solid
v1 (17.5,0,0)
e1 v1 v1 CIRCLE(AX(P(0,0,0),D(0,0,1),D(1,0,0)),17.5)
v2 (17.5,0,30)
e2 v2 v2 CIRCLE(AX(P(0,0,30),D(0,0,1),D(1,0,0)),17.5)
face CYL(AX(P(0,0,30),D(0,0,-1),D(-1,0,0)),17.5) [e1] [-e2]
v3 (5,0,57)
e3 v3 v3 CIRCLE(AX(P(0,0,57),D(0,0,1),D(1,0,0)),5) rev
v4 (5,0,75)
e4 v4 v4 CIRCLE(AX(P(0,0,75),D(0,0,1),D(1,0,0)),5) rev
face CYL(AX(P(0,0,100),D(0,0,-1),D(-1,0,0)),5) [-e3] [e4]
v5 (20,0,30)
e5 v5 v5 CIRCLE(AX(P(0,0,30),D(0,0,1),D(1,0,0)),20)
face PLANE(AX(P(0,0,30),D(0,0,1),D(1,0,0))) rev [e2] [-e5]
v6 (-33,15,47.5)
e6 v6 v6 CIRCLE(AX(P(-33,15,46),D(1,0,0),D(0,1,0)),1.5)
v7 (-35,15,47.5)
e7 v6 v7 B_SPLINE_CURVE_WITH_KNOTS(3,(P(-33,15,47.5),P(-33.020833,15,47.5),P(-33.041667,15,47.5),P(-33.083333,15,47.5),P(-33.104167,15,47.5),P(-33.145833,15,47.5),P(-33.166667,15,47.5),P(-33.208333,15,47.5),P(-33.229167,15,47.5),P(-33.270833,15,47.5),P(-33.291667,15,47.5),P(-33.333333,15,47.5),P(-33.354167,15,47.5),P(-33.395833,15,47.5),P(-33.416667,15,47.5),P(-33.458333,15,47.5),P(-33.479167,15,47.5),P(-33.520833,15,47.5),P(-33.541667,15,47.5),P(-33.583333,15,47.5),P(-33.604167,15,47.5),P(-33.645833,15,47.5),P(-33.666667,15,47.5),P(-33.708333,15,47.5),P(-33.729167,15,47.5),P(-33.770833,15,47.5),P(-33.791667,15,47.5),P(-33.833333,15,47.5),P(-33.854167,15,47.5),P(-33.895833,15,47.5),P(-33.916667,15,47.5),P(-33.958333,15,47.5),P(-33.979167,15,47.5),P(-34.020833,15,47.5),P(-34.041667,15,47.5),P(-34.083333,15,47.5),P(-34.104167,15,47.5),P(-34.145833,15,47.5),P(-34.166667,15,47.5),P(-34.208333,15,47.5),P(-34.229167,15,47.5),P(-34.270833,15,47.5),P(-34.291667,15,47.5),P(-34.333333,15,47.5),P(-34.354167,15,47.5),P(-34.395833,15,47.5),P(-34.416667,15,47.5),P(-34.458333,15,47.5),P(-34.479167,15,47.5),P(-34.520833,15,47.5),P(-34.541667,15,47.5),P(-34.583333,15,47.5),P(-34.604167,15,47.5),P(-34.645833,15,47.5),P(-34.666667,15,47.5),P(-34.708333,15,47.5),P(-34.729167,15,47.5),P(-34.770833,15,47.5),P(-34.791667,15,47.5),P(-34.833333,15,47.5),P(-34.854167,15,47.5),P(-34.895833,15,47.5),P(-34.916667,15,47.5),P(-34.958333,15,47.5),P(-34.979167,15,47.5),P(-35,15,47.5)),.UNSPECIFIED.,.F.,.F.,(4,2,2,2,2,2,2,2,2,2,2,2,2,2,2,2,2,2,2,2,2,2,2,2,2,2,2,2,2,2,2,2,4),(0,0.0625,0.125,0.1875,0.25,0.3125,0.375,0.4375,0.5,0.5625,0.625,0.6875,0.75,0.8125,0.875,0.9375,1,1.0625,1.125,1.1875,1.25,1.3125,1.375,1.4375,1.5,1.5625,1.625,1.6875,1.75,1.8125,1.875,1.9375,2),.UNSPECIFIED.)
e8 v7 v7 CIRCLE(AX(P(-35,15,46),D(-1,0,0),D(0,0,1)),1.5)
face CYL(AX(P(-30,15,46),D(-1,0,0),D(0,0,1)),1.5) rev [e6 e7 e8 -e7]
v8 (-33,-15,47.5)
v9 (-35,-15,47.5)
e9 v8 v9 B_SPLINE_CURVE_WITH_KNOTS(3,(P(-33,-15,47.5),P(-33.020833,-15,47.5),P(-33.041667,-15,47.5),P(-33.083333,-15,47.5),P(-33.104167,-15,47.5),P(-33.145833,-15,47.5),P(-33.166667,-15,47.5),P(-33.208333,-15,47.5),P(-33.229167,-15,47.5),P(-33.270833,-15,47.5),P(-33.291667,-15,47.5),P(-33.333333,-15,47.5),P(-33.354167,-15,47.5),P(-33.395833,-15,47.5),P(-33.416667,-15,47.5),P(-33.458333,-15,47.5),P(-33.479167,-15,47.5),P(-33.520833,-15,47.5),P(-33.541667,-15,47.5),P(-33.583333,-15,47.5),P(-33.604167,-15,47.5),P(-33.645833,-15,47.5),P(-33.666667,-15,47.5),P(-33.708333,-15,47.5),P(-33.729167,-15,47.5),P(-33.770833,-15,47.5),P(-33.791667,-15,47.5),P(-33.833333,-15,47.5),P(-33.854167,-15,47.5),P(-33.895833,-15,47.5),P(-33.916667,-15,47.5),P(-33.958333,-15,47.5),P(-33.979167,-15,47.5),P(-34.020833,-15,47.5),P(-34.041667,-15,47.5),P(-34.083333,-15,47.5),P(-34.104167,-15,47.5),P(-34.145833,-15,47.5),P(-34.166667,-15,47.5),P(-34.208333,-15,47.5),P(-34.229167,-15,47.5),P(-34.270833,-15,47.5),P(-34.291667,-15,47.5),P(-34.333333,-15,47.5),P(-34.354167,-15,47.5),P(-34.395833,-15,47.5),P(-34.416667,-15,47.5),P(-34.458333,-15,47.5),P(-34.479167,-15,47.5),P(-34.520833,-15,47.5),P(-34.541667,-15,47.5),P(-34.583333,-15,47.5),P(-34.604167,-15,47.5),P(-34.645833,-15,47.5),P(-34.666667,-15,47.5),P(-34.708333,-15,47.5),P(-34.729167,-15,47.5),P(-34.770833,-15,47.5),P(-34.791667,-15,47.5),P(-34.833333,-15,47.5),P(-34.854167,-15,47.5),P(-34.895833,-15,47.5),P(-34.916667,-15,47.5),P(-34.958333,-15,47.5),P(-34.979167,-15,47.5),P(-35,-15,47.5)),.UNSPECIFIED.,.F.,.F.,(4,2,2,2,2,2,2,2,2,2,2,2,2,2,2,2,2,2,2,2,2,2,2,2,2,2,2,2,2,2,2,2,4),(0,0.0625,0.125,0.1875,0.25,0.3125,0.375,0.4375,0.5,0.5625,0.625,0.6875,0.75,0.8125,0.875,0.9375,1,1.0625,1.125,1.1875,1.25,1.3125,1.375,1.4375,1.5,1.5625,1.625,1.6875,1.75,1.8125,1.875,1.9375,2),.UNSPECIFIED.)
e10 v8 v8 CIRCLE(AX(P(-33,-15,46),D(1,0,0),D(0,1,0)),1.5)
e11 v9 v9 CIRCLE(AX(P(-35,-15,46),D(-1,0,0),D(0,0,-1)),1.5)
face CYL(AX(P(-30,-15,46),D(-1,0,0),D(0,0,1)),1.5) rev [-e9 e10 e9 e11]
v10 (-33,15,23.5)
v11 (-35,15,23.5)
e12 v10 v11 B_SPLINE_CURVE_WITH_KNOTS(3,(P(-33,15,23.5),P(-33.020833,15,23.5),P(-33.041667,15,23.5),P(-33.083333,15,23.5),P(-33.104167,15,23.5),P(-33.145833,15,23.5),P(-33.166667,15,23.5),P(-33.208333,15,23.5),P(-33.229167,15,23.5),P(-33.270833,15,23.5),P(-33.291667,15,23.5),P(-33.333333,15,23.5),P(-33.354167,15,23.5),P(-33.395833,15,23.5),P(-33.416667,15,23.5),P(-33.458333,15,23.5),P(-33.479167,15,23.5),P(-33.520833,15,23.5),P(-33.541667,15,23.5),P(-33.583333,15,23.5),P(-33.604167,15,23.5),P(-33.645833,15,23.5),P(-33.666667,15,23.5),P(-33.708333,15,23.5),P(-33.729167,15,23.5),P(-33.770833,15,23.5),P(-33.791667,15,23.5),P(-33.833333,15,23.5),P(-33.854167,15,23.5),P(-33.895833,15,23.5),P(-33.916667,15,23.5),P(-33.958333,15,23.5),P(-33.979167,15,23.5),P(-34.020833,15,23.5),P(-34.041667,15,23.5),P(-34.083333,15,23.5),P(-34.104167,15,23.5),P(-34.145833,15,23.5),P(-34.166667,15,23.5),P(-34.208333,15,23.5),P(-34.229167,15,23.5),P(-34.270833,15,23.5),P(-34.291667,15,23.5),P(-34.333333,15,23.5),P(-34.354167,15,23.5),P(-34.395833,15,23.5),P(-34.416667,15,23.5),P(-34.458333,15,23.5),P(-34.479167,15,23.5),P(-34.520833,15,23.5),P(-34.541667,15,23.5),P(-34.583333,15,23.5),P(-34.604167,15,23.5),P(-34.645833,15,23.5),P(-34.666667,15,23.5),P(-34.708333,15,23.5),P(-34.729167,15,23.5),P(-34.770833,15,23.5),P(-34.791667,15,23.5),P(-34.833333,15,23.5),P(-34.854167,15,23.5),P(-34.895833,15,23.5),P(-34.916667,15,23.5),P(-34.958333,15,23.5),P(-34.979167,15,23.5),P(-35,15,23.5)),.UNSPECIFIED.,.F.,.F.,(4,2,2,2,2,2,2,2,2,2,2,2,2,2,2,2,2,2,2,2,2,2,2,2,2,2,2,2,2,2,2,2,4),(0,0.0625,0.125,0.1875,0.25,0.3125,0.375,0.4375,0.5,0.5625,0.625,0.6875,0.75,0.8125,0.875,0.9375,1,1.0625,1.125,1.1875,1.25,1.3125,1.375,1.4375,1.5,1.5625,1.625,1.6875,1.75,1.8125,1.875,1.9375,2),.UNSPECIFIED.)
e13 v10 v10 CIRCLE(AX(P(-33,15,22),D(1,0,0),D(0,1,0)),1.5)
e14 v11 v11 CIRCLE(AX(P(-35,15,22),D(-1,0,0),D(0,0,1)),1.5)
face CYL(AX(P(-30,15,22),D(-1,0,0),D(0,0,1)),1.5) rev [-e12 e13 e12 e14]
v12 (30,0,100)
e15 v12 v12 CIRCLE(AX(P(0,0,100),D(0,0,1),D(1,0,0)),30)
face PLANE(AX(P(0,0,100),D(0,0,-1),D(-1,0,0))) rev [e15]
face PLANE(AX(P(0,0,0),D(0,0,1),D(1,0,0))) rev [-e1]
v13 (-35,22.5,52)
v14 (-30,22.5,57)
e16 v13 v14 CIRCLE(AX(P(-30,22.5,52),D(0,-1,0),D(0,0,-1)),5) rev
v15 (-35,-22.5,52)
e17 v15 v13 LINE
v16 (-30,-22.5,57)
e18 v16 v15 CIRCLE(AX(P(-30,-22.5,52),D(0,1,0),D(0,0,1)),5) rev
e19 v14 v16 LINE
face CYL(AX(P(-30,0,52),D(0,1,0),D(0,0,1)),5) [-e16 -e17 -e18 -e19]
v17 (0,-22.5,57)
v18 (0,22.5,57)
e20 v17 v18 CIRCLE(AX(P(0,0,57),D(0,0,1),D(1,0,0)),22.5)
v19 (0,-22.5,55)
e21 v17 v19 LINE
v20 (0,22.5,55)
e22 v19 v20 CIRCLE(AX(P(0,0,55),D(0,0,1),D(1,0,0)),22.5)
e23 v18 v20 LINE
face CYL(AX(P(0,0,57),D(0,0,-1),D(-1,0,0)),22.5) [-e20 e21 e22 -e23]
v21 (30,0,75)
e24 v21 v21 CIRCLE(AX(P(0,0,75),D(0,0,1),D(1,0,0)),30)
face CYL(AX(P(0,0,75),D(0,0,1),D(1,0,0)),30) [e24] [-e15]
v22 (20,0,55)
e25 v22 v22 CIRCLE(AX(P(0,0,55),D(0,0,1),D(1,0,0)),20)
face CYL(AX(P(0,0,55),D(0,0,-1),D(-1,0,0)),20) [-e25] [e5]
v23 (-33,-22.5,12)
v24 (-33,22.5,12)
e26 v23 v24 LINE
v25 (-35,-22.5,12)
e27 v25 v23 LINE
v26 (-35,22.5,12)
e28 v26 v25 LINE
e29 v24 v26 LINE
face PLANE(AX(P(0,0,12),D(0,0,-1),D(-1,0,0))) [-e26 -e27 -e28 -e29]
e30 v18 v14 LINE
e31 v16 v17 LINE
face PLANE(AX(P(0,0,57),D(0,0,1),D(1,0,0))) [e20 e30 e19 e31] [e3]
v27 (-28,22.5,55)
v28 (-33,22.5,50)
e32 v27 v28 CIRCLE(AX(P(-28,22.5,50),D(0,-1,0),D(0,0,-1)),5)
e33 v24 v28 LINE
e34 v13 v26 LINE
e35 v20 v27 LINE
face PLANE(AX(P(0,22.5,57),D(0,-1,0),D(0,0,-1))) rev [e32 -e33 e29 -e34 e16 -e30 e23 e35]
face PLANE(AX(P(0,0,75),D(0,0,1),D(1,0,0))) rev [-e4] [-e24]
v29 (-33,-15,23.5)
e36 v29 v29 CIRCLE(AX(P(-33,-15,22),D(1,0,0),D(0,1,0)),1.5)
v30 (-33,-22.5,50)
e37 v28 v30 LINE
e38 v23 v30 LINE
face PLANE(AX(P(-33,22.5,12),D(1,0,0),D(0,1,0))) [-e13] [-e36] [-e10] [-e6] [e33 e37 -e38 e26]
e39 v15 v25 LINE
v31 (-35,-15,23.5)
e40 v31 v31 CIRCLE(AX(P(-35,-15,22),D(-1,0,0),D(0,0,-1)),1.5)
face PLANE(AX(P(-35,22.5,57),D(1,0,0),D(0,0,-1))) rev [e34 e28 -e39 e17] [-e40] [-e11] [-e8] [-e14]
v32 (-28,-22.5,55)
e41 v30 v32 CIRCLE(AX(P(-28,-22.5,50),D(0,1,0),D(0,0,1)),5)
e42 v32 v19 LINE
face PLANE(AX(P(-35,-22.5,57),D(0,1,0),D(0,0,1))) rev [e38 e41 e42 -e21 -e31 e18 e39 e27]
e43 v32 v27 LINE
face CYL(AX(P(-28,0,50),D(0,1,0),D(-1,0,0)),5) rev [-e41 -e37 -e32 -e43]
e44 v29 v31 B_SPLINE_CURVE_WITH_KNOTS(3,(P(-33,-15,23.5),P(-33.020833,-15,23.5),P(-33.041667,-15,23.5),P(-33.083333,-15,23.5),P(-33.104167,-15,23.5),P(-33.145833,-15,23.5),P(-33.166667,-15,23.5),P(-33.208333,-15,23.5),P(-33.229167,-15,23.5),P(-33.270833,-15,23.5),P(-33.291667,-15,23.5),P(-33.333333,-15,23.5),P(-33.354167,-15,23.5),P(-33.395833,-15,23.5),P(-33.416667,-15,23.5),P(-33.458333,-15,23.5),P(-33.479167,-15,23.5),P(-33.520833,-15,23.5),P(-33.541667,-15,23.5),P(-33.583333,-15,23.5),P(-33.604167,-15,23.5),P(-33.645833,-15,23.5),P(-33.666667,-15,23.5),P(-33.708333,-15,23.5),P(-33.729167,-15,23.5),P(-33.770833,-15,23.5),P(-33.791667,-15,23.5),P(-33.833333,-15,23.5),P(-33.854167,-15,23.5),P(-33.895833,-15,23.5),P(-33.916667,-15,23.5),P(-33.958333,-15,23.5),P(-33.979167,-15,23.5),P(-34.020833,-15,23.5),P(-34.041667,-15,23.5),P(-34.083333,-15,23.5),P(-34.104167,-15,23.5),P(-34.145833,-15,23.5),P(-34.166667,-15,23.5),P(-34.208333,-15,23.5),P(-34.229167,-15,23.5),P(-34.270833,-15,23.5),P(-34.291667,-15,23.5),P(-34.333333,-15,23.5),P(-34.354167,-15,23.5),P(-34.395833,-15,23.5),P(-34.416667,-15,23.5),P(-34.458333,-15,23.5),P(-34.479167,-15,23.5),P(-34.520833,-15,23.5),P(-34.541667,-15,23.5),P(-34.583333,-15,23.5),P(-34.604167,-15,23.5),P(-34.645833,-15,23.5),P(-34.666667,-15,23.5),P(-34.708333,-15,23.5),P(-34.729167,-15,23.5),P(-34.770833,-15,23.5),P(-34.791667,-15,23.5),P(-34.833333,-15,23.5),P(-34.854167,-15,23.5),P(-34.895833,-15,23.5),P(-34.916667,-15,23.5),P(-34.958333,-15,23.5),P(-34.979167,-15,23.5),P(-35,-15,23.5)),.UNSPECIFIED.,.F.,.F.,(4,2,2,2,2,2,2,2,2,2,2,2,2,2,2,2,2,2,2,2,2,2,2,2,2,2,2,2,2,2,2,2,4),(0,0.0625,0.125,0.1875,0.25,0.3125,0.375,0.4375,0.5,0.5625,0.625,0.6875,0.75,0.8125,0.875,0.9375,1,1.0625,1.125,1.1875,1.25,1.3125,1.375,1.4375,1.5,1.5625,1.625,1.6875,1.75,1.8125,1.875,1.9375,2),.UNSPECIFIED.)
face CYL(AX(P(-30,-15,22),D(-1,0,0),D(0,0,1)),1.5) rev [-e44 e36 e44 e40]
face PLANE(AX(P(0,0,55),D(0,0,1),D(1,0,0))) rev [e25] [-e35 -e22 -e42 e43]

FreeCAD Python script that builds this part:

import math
import FreeCAD as App
import Part
import Sketcher

V = App.Vector
Q = App.Units.Quantity


def edges_at(feature, points):
    """Names of the edges that pass closest to the given points."""
    edges = feature.Shape.Edges
    near = lambda p: min(range(len(edges)), key=lambda i: edges[i].distToShape(Part.Vertex(*p))[0])
    return sorted({f"Edge{near(p) + 1}" for p in points})

doc = App.newDocument("Part")
params = doc.addObject("Spreadsheet::Sheet", "Params")
for row, (alias, value) in enumerate([
    ("sketch1_diameter", "35 mm"),
    ("pad1_length", "30 mm"),
    ("sketch2_diameter", "40 mm"),
    ("pad2_length", "25 mm"),
    ("sketch3_diameter", "10 mm"),
    ("pad3_length", "100 mm"),
    ("sketch4_diameter", "60 mm"),
    ("pad4_length", "25 mm"),
    ("sketch5_radius", "22.5 mm"),
    ("sketch5_width", "35 mm"),
    ("pad5_length", "2 mm"),
    ("sketch6_width", "2 mm"),
    ("sketch6_height", "45 mm"),
    ("pad6_length", "45 mm"),
    ("fillet_radius", "5 mm"),
    ("sketch7_diameter", "3 mm"),
    ("pocket1_length", "5 mm"),
], start=1):
    params.set(f"A{row}", alias)
    params.set(f"B{row}", "=" + value)
    params.setAlias(f"B{row}", alias)

body = doc.addObject("PartDesign::Body", "Body")

sketch1 = body.newObject("Sketcher::SketchObject", "Sketch")
sketch1.AttachmentSupport = (doc.getObject("XY_Plane"), [""])
sketch1.MapMode = "FlatFace"
sketch1.addGeometry(Part.Circle(V(0, 0, 0), V(0, 0, 1), 18), False)
sketch1.addConstraint([
    Sketcher.Constraint("Coincident", 0, 3, -1, 1),
    Sketcher.Constraint("Diameter", 0, Q("35 mm")),
])
sketch1.setExpression("Constraints[1]", "Params.sketch1_diameter")
pad1 = body.newObject("PartDesign::Pad", "Pad")
pad1.Profile = sketch1
pad1.setExpression("Length", "Params.pad1_length")

sketch2 = body.newObject("Sketcher::SketchObject", "Sketch001")
sketch2.AttachmentSupport = (doc.getObject("XY_Plane"), [""])
sketch2.MapMode = "FlatFace"
sketch2.AttachmentOffset = App.Placement(V(0, 0, 30), App.Rotation())
sketch2.addGeometry(Part.Circle(V(0, 0, 0), V(0, 0, 1), 20), False)
sketch2.addConstraint([
    Sketcher.Constraint("Coincident", 0, 3, -1, 1),
    Sketcher.Constraint("Diameter", 0, Q("40 mm")),
])
sketch2.setExpression("Constraints[1]", "Params.sketch2_diameter")
pad2 = body.newObject("PartDesign::Pad", "Pad001")
pad2.Profile = sketch2
pad2.setExpression("Length", "Params.pad2_length")

sketch3 = body.newObject("Sketcher::SketchObject", "Sketch002")
sketch3.AttachmentSupport = (doc.getObject("XY_Plane"), [""])
sketch3.MapMode = "FlatFace"
sketch3.addGeometry(Part.Circle(V(0, 0, 0), V(0, 0, 1), 5), False)
sketch3.addConstraint([
    Sketcher.Constraint("Coincident", 0, 3, -1, 1),
    Sketcher.Constraint("Diameter", 0, Q("10 mm")),
])
sketch3.setExpression("Constraints[1]", "Params.sketch3_diameter")
pad3 = body.newObject("PartDesign::Pad", "Pad002")
pad3.Profile = sketch3
pad3.setExpression("Length", "Params.pad3_length")

sketch4 = body.newObject("Sketcher::SketchObject", "Sketch003")
sketch4.AttachmentSupport = (doc.getObject("XY_Plane"), [""])
sketch4.MapMode = "FlatFace"
sketch4.AttachmentOffset = App.Placement(V(0, 0, 100), App.Rotation())
sketch4.addGeometry(Part.Circle(V(0, 0, 0), V(0, 0, 1), 30), False)
sketch4.addConstraint([
    Sketcher.Constraint("Coincident", 0, 3, -1, 1),
    Sketcher.Constraint("Diameter", 0, Q("60 mm")),
])
sketch4.setExpression("Constraints[1]", "Params.sketch4_diameter")
pad4 = body.newObject("PartDesign::Pad", "Pad003")
pad4.Profile = sketch4
pad4.setExpression("Length", "Params.pad4_length")
pad4.Reversed = True

sketch5 = body.newObject("Sketcher::SketchObject", "Sketch004")
sketch5.AttachmentSupport = (doc.getObject("XY_Plane"), [""])
sketch5.MapMode = "FlatFace"
sketch5.AttachmentOffset = App.Placement(V(0, 0, 55), App.Rotation())
sketch5.addGeometry([
    Part.LineSegment(V(0, 22, 0), V(-35, 22, 0)),
    Part.LineSegment(V(-35, 22, 0), V(-35, -22, 0)),
    Part.LineSegment(V(-35, -22, 0), V(0, -22, 0)),
    Part.ArcOfCircle(Part.Circle(V(0, 0, 0), V(0, 0, 1), 22), math.radians(-90), math.radians(90)),
], False)
sketch5.addConstraint([
    Sketcher.Constraint("Coincident", 0, 2, 1, 1),
    Sketcher.Constraint("Coincident", 1, 2, 2, 1),
    Sketcher.Constraint("Tangent", 2, 2, 3, 1),
    Sketcher.Constraint("Tangent", 3, 2, 0, 1),
    Sketcher.Constraint("Horizontal", 0),
    Sketcher.Constraint("Vertical", 1),
    Sketcher.Constraint("Horizontal", 2),
    Sketcher.Constraint("Coincident", 3, 3, -1, 1),
    Sketcher.Constraint("Radius", 3, Q("22.5 mm")),
    Sketcher.Constraint("DistanceX", 0, 2, 0, 1, Q("35 mm")),
])
sketch5.setExpression("Constraints[8]", "Params.sketch5_radius")
sketch5.setExpression("Constraints[9]", "Params.sketch5_width")
pad5 = body.newObject("PartDesign::Pad", "Pad004")
pad5.Profile = sketch5
pad5.setExpression("Length", "Params.pad5_length")

sketch6 = body.newObject("Sketcher::SketchObject", "Sketch005")
sketch6.AttachmentSupport = (doc.getObject("XY_Plane"), [""])
sketch6.MapMode = "FlatFace"
sketch6.AttachmentOffset = App.Placement(V(0, 0, 57), App.Rotation())
sketch6.addGeometry([
    Part.LineSegment(V(-35, 22.5, 0), V(-35, -22.5, 0)),
    Part.LineSegment(V(-35, -22.5, 0), V(-33, -22.5, 0)),
    Part.LineSegment(V(-33, -22.5, 0), V(-33, 22.5, 0)),
    Part.LineSegment(V(-33, 22.5, 0), V(-35, 22.5, 0)),
], False)
sketch6.addConstraint([
    Sketcher.Constraint("Coincident", 0, 2, 1, 1),
    Sketcher.Constraint("Coincident", 1, 2, 2, 1),
    Sketcher.Constraint("Coincident", 2, 2, 3, 1),
    Sketcher.Constraint("Coincident", 3, 2, 0, 1),
    Sketcher.Constraint("Vertical", 0),
    Sketcher.Constraint("Horizontal", 1),
    Sketcher.Constraint("Vertical", 2),
    Sketcher.Constraint("Horizontal", 3),
    Sketcher.Constraint("DistanceX", 1, 1, 1, 2, Q("2 mm")),
    Sketcher.Constraint("DistanceY", 0, 2, 0, 1, Q("45 mm")),
    Sketcher.Constraint("DistanceX", 0, 2, -1, 1, Q("35 mm")),
    Sketcher.Constraint("DistanceY", 0, 2, -1, 1, Q("22.5 mm")),
])
sketch6.setExpression("Constraints[8]", "Params.sketch6_width")
sketch6.setExpression("Constraints[9]", "Params.sketch6_height")
pad6 = body.newObject("PartDesign::Pad", "Pad005")
pad6.Profile = sketch6
pad6.setExpression("Length", "Params.pad6_length")
pad6.Reversed = True
doc.recompute()

fillet = body.newObject("PartDesign::Fillet", "Fillet")
fillet.Base = (pad6, edges_at(pad6, [(-35, 0, 57), (-33, 0, 55)]))
fillet.setExpression("Radius", "Params.fillet_radius")

sketch7 = body.newObject("Sketcher::SketchObject", "Sketch006")
sketch7.AttachmentSupport = (doc.getObject("YZ_Plane"), [""])
sketch7.MapMode = "FlatFace"
sketch7.AttachmentOffset = App.Placement(V(0, 0, -35), App.Rotation())
sketch7.addGeometry([
    Part.Circle(V(15, 22, 0), V(0, 0, 1), 1.5),
    Part.Circle(V(-15, 22, 0), V(0, 0, 1), 1.5),
    Part.Circle(V(15, 46, 0), V(0, 0, 1), 1.5),
    Part.Circle(V(-15, 46, 0), V(0, 0, 1), 1.5),
], False)
sketch7.addConstraint([
    Sketcher.Constraint("Equal", 0, 1),
    Sketcher.Constraint("Equal", 1, 2),
    Sketcher.Constraint("Equal", 2, 3),
    Sketcher.Constraint("Symmetric", 0, 3, 1, 3, -2),
    Sketcher.Constraint("Symmetric", 2, 3, 3, 3, -2),
    Sketcher.Constraint("Vertical", 0, 3, 2, 3),
    Sketcher.Constraint("Diameter", 0, Q("3 mm")),
    Sketcher.Constraint("DistanceX", -1, 1, 0, 3, Q("15 mm")),
    Sketcher.Constraint("DistanceY", -1, 1, 0, 3, Q("22 mm")),
    Sketcher.Constraint("DistanceY", -1, 1, 2, 3, Q("46 mm")),
])
sketch7.setExpression("Constraints[6]", "Params.sketch7_diameter")
pocket1 = body.newObject("PartDesign::Pocket", "Pocket")
pocket1.Profile = sketch7
pocket1.setExpression("Length", "Params.pocket1_length")
pocket1.Reversed = True

doc.recompute()
